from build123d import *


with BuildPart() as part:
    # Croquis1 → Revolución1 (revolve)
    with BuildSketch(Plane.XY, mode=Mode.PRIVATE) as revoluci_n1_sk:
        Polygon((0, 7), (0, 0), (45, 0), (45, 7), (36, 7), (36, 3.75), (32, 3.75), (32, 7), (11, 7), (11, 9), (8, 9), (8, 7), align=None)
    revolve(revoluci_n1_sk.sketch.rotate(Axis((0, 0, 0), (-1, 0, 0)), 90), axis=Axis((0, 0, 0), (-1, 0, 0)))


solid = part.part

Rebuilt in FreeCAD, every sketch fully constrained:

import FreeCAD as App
import Part
import Sketcher

V = App.Vector


def add_polygon(sketch, points):
    """Adds a closed chain of lines whose ends are joined by coincident constraints."""
    first, n = sketch.GeometryCount, len(points)
    for a, b in zip(points, points[1:] + points[:1]):
        sketch.addGeometry(Part.LineSegment(App.Vector(*a, 0), App.Vector(*b, 0)), False)
    for i in range(n):
        sketch.addConstraint(Sketcher.Constraint("Coincident", first + i, 2, first + (i + 1) % n, 1))

doc = App.newDocument("Part")
body = doc.addObject("PartDesign::Body", "Body")

# Sketch on XY plane
sketch1 = doc.addObject("Sketcher::SketchObject", "Sketch")
body.addObject(sketch1)
sketch1.AttachmentSupport = (doc.XY_Plane, [""])
sketch1.MapMode = "FlatFace"
add_polygon(sketch1, [(0, 7), (0, 0), (45, 0), (45, 7), (36, 7), (36, 3.8), (32, 3.8), (32, 7), (11, 7), (11, 9), (8, 9), (8, 7)])  # lines 0-11
sketch1.addConstraint([
    Sketcher.Constraint("Vertical", 0),
    Sketcher.Constraint("Horizontal", 1),
    Sketcher.Constraint("Vertical", 2),
    Sketcher.Constraint("Horizontal", 3),
    Sketcher.Constraint("Vertical", 4),
    Sketcher.Constraint("Horizontal", 5),
    Sketcher.Constraint("Vertical", 6),
    Sketcher.Constraint("Horizontal", 7),
    Sketcher.Constraint("Vertical", 8),
    Sketcher.Constraint("Horizontal", 9),
    Sketcher.Constraint("Vertical", 10),
    Sketcher.Constraint("Horizontal", 11),
    Sketcher.Constraint("Coincident", 0, 2, -1, 1),
    Sketcher.Constraint("Horizontal", 3, 2, 6, 2),
    Sketcher.Constraint("Horizontal", 7, 2, 10, 2),
    Sketcher.Constraint("DistanceX", 1, 1, 1, 2, 45.0),
    Sketcher.Constraint("DistanceX", 3, 2, 3, 1, 9.0),
    Sketcher.Constraint("DistanceX", 5, 2, 5, 1, 4.0),
    Sketcher.Constraint("DistanceX", 7, 2, 7, 1, 21.0),
    Sketcher.Constraint("DistanceX", 9, 2, 9, 1, 3.0),
    Sketcher.Constraint("DistanceY", 0, 2, 0, 1, 7.0),
    Sketcher.Constraint("DistanceY", 8, 1, 8, 2, 2.0),
    Sketcher.Constraint("DistanceY", 4, 2, 4, 1, 3.25),
])
revolution = doc.addObject("PartDesign::Revolution", "Revolution")
body.addObject(revolution)
revolution.Profile = sketch1
revolution.ReferenceAxis = (sketch1, ["H_Axis"])
revolution.Angle = 360

doc.recompute()
